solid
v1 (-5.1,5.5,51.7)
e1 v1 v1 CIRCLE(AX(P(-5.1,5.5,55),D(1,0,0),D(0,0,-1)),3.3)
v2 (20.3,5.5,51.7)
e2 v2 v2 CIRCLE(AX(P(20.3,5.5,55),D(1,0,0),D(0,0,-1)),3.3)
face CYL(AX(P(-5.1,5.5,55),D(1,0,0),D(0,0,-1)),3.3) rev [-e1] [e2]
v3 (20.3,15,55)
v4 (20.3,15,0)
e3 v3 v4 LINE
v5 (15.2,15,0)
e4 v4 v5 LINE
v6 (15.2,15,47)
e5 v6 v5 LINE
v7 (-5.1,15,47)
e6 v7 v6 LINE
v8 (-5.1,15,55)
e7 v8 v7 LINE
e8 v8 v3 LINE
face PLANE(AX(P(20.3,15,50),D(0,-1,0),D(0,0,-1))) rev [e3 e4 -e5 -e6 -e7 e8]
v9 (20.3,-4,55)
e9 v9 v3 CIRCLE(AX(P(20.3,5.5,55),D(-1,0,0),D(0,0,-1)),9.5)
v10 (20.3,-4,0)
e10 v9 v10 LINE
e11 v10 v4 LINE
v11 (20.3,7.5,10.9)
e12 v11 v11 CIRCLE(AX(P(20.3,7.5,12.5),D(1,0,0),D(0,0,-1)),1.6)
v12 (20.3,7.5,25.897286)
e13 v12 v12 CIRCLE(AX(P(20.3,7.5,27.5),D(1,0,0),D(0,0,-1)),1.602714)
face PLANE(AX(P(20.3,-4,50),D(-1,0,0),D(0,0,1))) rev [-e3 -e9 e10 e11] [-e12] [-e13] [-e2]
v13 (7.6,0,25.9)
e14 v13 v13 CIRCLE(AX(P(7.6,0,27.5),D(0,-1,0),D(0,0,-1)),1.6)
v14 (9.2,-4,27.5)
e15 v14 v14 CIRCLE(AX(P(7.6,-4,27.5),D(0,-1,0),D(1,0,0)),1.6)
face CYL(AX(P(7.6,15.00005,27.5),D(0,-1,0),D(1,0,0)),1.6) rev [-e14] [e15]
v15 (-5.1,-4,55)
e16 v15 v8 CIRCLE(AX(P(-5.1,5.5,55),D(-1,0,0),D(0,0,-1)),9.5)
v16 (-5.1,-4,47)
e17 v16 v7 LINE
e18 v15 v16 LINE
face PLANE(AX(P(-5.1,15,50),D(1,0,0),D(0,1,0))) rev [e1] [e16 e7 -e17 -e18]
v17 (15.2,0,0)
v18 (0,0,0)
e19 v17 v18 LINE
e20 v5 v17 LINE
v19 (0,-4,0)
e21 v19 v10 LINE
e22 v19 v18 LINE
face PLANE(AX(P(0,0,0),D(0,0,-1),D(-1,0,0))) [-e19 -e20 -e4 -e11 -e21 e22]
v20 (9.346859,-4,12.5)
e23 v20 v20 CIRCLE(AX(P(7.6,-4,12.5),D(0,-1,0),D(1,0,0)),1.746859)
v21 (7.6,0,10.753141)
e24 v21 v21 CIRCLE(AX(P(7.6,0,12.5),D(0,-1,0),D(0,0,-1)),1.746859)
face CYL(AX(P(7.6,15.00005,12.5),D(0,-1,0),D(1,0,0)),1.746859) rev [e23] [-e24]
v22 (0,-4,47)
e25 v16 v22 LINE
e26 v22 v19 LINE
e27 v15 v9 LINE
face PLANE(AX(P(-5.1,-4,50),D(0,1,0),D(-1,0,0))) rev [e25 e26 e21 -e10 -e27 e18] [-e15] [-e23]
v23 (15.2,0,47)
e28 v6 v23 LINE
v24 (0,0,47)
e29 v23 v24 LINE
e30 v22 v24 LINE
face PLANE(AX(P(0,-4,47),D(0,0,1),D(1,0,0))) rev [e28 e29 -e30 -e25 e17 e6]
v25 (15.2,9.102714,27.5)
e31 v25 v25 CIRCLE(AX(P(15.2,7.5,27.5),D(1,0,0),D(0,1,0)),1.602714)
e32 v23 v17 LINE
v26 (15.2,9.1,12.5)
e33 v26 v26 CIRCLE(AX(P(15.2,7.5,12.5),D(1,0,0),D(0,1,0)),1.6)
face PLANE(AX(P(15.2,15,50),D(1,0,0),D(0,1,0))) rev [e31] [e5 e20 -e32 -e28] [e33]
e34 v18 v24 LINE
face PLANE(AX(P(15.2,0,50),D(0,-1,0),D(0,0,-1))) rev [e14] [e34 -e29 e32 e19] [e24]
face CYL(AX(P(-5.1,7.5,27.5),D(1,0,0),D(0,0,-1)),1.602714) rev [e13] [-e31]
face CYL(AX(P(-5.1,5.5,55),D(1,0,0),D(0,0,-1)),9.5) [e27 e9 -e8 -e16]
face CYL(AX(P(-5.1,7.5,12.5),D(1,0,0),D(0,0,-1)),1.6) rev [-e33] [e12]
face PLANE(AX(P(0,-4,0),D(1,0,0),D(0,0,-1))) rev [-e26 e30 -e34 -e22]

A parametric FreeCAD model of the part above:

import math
import FreeCAD as App
import Part
import Sketcher

V = App.Vector
Q = App.Units.Quantity

doc = App.newDocument("Part")
params = doc.addObject("Spreadsheet::Sheet", "Params")
for row, (alias, value) in enumerate([
    ("sketch1_height", "15 mm"),
    ("sketch1_height2", "19 mm"),
    ("sketch1_width", "5.1 mm"),
    ("sketch1_width2", "25.4 mm"),
    ("pad1_length", "50 mm"),
    ("sketch2_height", "19 mm"),
    ("sketch2_width", "25.4 mm"),
    ("pad2_length", "25.4 mm"),
    ("sketch3_diameter", "6.6 mm"),
    ("sketch3_radius", "9.5 mm"),
    ("sketch3_height", "20.4 mm"),
    ("pocket1_length", "25.4 mm"),
    ("sketch4_diameter", "3.2 mm"),
    ("pocket2_length", "25.4 mm"),
    ("sketch5_diameter", "3.2 mm"),
    ("sketch6_height", "47 mm"),
    ("sketch6_width", "5.1 mm"),
    ("sketch7_height", "3 mm"),
    ("sketch7_width", "15.2 mm"),
    ("pad3_length", "15 mm"),
], start=1):
    params.set(f"A{row}", alias)
    params.set(f"B{row}", "=" + value)
    params.setAlias(f"B{row}", alias)

body = doc.addObject("PartDesign::Body", "Body")

# Sketch on XY plane
sketch1 = doc.addObject("Sketcher::SketchObject", "Sketch")
body.addObject(sketch1)
sketch1.AttachmentSupport = (doc.XY_Plane, [""])
sketch1.MapMode = "FlatFace"
sketch1.addGeometry([
    Part.LineSegment(V(0, 0, 0), V(0, 15, 0)),  # 0
    Part.LineSegment(V(0, 15, 0), V(-5, 15, 0)),  # 1
    Part.LineSegment(V(-5, 15, 0), V(-5, -4, 0)),  # 2
    Part.LineSegment(V(-5, -4, 0), V(20, -4, 0)),  # 3
    Part.LineSegment(V(20, -4, 0), V(20, 15, 0)),  # 4
    Part.LineSegment(V(20, 15, 0), V(15, 15, 0)),  # 5
    Part.LineSegment(V(15, 15, 0), V(15, 0, 0)),  # 6
    Part.LineSegment(V(15, 0, 0), V(0, 0, 0)),  # 7
], False)
sketch1.addConstraint([
    Sketcher.Constraint("Coincident", 0, 2, 1, 1),
    Sketcher.Constraint("Coincident", 1, 2, 2, 1),
    Sketcher.Constraint("Coincident", 2, 2, 3, 1),
    Sketcher.Constraint("Coincident", 3, 2, 4, 1),
    Sketcher.Constraint("Coincident", 4, 2, 5, 1),
    Sketcher.Constraint("Coincident", 5, 2, 6, 1),
    Sketcher.Constraint("Coincident", 6, 2, 7, 1),
    Sketcher.Constraint("Coincident", 7, 2, 0, 1),
    Sketcher.Constraint("Vertical", 0),
    Sketcher.Constraint("Horizontal", 1),
    Sketcher.Constraint("Vertical", 2),
    Sketcher.Constraint("Horizontal", 3),
    Sketcher.Constraint("Vertical", 4),
    Sketcher.Constraint("Horizontal", 5),
    Sketcher.Constraint("Vertical", 6),
    Sketcher.Constraint("Horizontal", 7),
    Sketcher.Constraint("Coincident", 7, 2, -1, 1),
    Sketcher.Constraint("Horizontal", 1, 2, 4, 2),
    Sketcher.Constraint("Equal", 1, 5),
    Sketcher.Constraint("DistanceY", 0, 1, 0, 2, Q("15 mm")),
    Sketcher.Constraint("DistanceY", 2, 2, 2, 1, Q("19 mm")),
    Sketcher.Constraint("DistanceX", 1, 2, 1, 1, Q("5.1 mm")),
    Sketcher.Constraint("DistanceX", 3, 1, 3, 2, Q("25.4 mm")),
])
sketch1.setExpression("Constraints[19]", "Params.sketch1_height")
sketch1.setExpression("Constraints[20]", "Params.sketch1_height2")
sketch1.setExpression("Constraints[21]", "Params.sketch1_width")
sketch1.setExpression("Constraints[22]", "Params.sketch1_width2")
pad1 = doc.addObject("PartDesign::Pad", "Pad")
body.addObject(pad1)
pad1.Profile = sketch1
pad1.setExpression("Length", "Params.pad1_length")

# Sketch on XY plane
sketch2 = doc.addObject("Sketcher::SketchObject", "Sketch001")
body.addObject(sketch2)
sketch2.AttachmentSupport = (doc.XY_Plane, [""])
sketch2.MapMode = "FlatFace"
sketch2.AttachmentOffset = App.Placement(V(0, 0, 50), App.Rotation())
sketch2.addGeometry([
    Part.LineSegment(V(-5, 15, 0), V(-5, -4, 0)),
    Part.LineSegment(V(-5, -4, 0), V(20, -4, 0)),
    Part.LineSegment(V(20, -4, 0), V(20, 15, 0)),
    Part.LineSegment(V(20, 15, 0), V(-5, 15, 0)),
], False)
sketch2.addConstraint([
    Sketcher.Constraint("Coincident", 0, 2, 1, 1),
    Sketcher.Constraint("Coincident", 1, 2, 2, 1),
    Sketcher.Constraint("Coincident", 2, 2, 3, 1),
    Sketcher.Constraint("Coincident", 3, 2, 0, 1),
    Sketcher.Constraint("Vertical", 0),
    Sketcher.Constraint("Horizontal", 1),
    Sketcher.Constraint("Vertical", 2),
    Sketcher.Constraint("Horizontal", 3),
    Sketcher.Constraint("DistanceY", 0, 2, 0, 1, Q("19 mm")),
    Sketcher.Constraint("DistanceX", 1, 1, 1, 2, Q("25.4 mm")),
    Sketcher.Constraint("DistanceY", 0, 2, -1, 1, Q("4 mm")),
    Sketcher.Constraint("DistanceX", 0, 2, -1, 1, Q("5.1 mm")),
])
sketch2.setExpression("Constraints[8]", "Params.sketch2_height")
sketch2.setExpression("Constraints[9]", "Params.sketch2_width")
pad2 = doc.addObject("PartDesign::Pad", "Pad001")
body.addObject(pad2)
pad2.Profile = sketch2
pad2.setExpression("Length", "Params.pad2_length")

# Sketch on YZ plane
sketch3 = doc.addObject("Sketcher::SketchObject", "Sketch002")
body.addObject(sketch3)
sketch3.AttachmentSupport = (doc.YZ_Plane, [""])
sketch3.MapMode = "FlatFace"
sketch3.AttachmentOffset = App.Placement(V(0, 0, 20.3), App.Rotation())
sketch3.addGeometry([
    Part.Circle(V(5.5, 55, 0), V(0, 0, 1), 3.3),  # 0
    Part.LineSegment(V(-4, 75.4, 0), V(-4, 55, 0)),  # 1
    Part.ArcOfCircle(Part.Circle(V(5.5, 55, 0), V(0, 0, 1), 9.5), math.radians(0), math.radians(180)),  # 2
    Part.LineSegment(V(15, 55, 0), V(15, 75.4, 0)),  # 3
    Part.LineSegment(V(15, 75.4, 0), V(-4, 75.4, 0)),  # 4
], False)
sketch3.addConstraint([
    Sketcher.Constraint("Tangent", 1, 2, 2, 2),
    Sketcher.Constraint("Tangent", 2, 1, 3, 1),
    Sketcher.Constraint("Coincident", 3, 2, 4, 1),
    Sketcher.Constraint("Coincident", 4, 2, 1, 1),
    Sketcher.Constraint("Vertical", 1),
    Sketcher.Constraint("Vertical", 3),
    Sketcher.Constraint("Horizontal", 4),
    Sketcher.Constraint("Coincident", 2, 3, 0, 3),
    Sketcher.Constraint("Diameter", 0, Q("6.6 mm")),
    Sketcher.Constraint("Radius", 2, Q("9.5 mm")),
    Sketcher.Constraint("DistanceY", 1, 2, 1, 1, Q("20.4 mm")),
    Sketcher.Constraint("DistanceY", -1, 1, 0, 3, Q("55 mm")),
    Sketcher.Constraint("DistanceX", 1, 2, -1, 1, Q("4 mm")),
])
sketch3.setExpression("Constraints[8]", "Params.sketch3_diameter")
sketch3.setExpression("Constraints[9]", "Params.sketch3_radius")
sketch3.setExpression("Constraints[10]", "Params.sketch3_height")
pocket1 = doc.addObject("PartDesign::Pocket", "Pocket")
body.addObject(pocket1)
pocket1.Profile = sketch3
pocket1.setExpression("Length", "Params.pocket1_length")

# Sketch on YZ plane
sketch4 = doc.addObject("Sketcher::SketchObject", "Sketch003")
body.addObject(sketch4)
sketch4.AttachmentSupport = (doc.YZ_Plane, [""])
sketch4.MapMode = "FlatFace"
sketch4.AttachmentOffset = App.Placement(V(0, 0, 20.3), App.Rotation())
sketch4.addGeometry([
    Part.Circle(V(7.5, 12.5, 0), V(0, 0, 1), 1.6),
    Part.Circle(V(7.5, 27.5, 0), V(0, 0, 1), 1.6),
], False)
sketch4.addConstraint([
    Sketcher.Constraint("Vertical", 0, 3, 1, 3),
    Sketcher.Constraint("Diameter", 0, Q("3.2 mm")),
    Sketcher.Constraint("DistanceY", 0, 3, 1, 3, Q("15 mm")),
    Sketcher.Constraint("DistanceX", -1, 1, 0, 3, Q("7.5 mm")),
    Sketcher.Constraint("DistanceY", -1, 1, 0, 3, Q("12.5 mm")),
    Sketcher.Constraint("Diameter", 1, Q("3.205428 mm")),
])
sketch4.setExpression("Constraints[1]", "Params.sketch4_diameter")
pocket2 = doc.addObject("PartDesign::Pocket", "Pocket001")
body.addObject(pocket2)
pocket2.Profile = sketch4
pocket2.setExpression("Length", "Params.pocket2_length")

# Sketch on XZ plane
sketch5 = doc.addObject("Sketcher::SketchObject", "Sketch004")
body.addObject(sketch5)
sketch5.AttachmentSupport = (doc.XZ_Plane, [""])
sketch5.MapMode = "FlatFace"
sketch5.AttachmentOffset = App.Placement(V(0, 0, 4), App.Rotation())
sketch5.addGeometry([
    Part.Circle(V(7.6, 12.5, 0), V(0, 0, 1), 1.7),
    Part.Circle(V(7.6, 27.5, 0), V(0, 0, 1), 1.6),
], False)
sketch5.addConstraint([
    Sketcher.Constraint("Vertical", 0, 3, 1, 3),
    Sketcher.Constraint("Diameter", 1, Q("3.2 mm")),
    Sketcher.Constraint("DistanceY", 0, 3, 1, 3, Q("15 mm")),
    Sketcher.Constraint("DistanceX", -1, 1, 0, 3, Q("7.6 mm")),
    Sketcher.Constraint("DistanceY", -1, 1, 0, 3, Q("12.5 mm")),
    Sketcher.Constraint("Diameter", 0, Q("3.493717 mm")),
])
sketch5.setExpression("Constraints[1]", "Params.sketch5_diameter")
pocket3 = doc.addObject("PartDesign::Pocket", "Pocket002")
body.addObject(pocket3)
pocket3.Profile = sketch5
pocket3.Type = "ThroughAll"

# Sketch on XZ plane
sketch6 = doc.addObject("Sketcher::SketchObject", "Sketch005")
body.addObject(sketch6)
sketch6.AttachmentSupport = (doc.XZ_Plane, [""])
sketch6.MapMode = "FlatFace"
sketch6.AttachmentOffset = App.Placement(V(0, 0, -15), App.Rotation())
sketch6.addGeometry([
    Part.LineSegment(V(-5, 0, 0), V(-5, 47, 0)),
    Part.LineSegment(V(-5, 47, 0), V(0, 47, 0)),
    Part.LineSegment(V(0, 47, 0), V(0, 0, 0)),
    Part.LineSegment(V(0, 0, 0), V(-5, 0, 0)),
], False)
sketch6.addConstraint([
    Sketcher.Constraint("Coincident", 0, 2, 1, 1),
    Sketcher.Constraint("Coincident", 1, 2, 2, 1),
    Sketcher.Constraint("Coincident", 2, 2, 3, 1),
    Sketcher.Constraint("Coincident", 3, 2, 0, 1),
    Sketcher.Constraint("Vertical", 0),
    Sketcher.Constraint("Horizontal", 1),
    Sketcher.Constraint("Vertical", 2),
    Sketcher.Constraint("Horizontal", 3),
    Sketcher.Constraint("Coincident", 2, 2, -1, 1),
    Sketcher.Constraint("DistanceY", 0, 1, 0, 2, Q("47 mm")),
    Sketcher.Constraint("DistanceX", 1, 1, 1, 2, Q("5.1 mm")),
])
sketch6.setExpression("Constraints[9]", "Params.sketch6_height")
sketch6.setExpression("Constraints[10]", "Params.sketch6_width")
pocket4 = doc.addObject("PartDesign::Pocket", "Pocket003")
body.addObject(pocket4)
pocket4.Profile = sketch6
pocket4.Type = "ThroughAll"
pocket4.Reversed = True

# Sketch on XZ plane
sketch7 = doc.addObject("Sketcher::SketchObject", "Sketch006")
body.addObject(sketch7)
sketch7.AttachmentSupport = (doc.XZ_Plane, [""])
sketch7.MapMode = "FlatFace"
sketch7.addGeometry([
    Part.LineSegment(V(0, 47, 0), V(0, 50, 0)),
    Part.LineSegment(V(0, 50, 0), V(15.2, 50, 0)),
    Part.LineSegment(V(15.2, 50, 0), V(15.2, 47, 0)),
    Part.LineSegment(V(15.2, 47, 0), V(0, 47, 0)),
], False)
sketch7.addConstraint([
    Sketcher.Constraint("Coincident", 0, 2, 1, 1),
    Sketcher.Constraint("Coincident", 1, 2, 2, 1),
    Sketcher.Constraint("Coincident", 2, 2, 3, 1),
    Sketcher.Constraint("Coincident", 3, 2, 0, 1),
    Sketcher.Constraint("Vertical", 0),
    Sketcher.Constraint("Horizontal", 1),
    Sketcher.Constraint("Vertical", 2),
    Sketcher.Constraint("Horizontal", 3),
    Sketcher.Constraint("PointOnObject", 0, 2, -2),
    Sketcher.Constraint("DistanceY", 0, 1, 0, 2, Q("3 mm")),
    Sketcher.Constraint("DistanceX", 1, 1, 1, 2, Q("15.2 mm")),
    Sketcher.Constraint("DistanceY", -1, 1, 0, 2, Q("50 mm")),
])
sketch7.setExpression("Constraints[9]", "Params.sketch7_height")
sketch7.setExpression("Constraints[10]", "Params.sketch7_width")
pad3 = doc.addObject("PartDesign::Pad", "Pad002")
body.addObject(pad3)
pad3.Profile = sketch7
pad3.setExpression("Length", "Params.pad3_length")
pad3.Reversed = True

doc.recompute()
